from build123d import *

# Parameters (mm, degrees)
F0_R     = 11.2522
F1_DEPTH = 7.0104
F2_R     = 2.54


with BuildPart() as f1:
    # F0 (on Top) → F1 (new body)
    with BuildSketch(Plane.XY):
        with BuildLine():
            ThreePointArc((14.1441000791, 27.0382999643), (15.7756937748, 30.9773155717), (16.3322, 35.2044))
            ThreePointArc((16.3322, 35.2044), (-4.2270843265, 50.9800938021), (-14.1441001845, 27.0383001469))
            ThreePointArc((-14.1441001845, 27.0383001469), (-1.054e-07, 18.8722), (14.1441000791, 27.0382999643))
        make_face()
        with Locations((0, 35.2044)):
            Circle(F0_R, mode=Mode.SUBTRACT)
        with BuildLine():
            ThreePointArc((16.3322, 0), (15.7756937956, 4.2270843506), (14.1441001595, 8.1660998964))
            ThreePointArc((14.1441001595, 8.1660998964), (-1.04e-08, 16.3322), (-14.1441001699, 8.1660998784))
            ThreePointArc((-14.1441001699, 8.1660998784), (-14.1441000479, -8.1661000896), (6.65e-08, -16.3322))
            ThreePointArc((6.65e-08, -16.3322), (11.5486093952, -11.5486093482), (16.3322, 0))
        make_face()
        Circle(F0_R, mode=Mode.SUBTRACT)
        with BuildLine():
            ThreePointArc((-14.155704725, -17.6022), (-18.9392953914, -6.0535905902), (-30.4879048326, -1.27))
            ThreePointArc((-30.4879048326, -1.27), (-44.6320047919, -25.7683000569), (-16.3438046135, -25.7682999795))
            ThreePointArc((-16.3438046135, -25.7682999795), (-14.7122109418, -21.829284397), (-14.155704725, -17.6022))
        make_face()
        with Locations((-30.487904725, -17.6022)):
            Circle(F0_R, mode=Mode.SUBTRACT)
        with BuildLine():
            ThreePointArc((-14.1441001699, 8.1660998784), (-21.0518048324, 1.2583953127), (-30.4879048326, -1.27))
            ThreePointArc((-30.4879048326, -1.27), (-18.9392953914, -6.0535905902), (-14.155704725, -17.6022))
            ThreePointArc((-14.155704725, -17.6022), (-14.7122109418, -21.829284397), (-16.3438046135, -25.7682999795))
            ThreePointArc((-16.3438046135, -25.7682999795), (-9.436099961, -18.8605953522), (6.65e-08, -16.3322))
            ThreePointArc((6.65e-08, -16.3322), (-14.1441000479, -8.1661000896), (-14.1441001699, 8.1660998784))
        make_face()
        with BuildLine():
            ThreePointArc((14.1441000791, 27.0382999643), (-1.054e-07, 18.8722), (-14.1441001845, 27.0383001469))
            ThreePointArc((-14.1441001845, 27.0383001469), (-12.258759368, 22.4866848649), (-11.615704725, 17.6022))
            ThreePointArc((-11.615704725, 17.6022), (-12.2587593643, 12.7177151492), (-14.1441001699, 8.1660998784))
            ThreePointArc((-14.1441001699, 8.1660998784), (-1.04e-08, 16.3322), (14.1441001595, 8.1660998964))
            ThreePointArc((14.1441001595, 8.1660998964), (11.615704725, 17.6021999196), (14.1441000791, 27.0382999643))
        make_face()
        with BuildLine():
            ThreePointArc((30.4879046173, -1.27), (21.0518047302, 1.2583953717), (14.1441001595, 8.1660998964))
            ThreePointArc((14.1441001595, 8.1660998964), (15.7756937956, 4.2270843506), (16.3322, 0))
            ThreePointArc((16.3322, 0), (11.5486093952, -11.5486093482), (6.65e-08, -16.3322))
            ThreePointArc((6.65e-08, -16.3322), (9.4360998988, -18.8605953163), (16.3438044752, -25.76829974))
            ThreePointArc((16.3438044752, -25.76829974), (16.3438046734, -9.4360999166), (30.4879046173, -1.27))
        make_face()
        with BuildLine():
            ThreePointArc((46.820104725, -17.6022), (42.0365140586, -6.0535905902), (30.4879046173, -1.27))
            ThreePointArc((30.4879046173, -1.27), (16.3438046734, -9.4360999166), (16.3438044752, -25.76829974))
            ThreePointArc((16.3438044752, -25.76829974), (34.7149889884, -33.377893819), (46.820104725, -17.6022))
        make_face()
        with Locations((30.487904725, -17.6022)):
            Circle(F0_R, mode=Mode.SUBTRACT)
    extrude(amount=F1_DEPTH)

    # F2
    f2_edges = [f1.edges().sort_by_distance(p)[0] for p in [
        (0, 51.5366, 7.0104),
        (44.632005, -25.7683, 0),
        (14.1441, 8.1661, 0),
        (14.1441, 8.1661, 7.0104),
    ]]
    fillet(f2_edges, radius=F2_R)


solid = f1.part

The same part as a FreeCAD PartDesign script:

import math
import FreeCAD as App
import Part
import Sketcher
Q = App.Units.Quantity


def edges_at(feature, points):
    """Names of the edges that pass closest to the given points."""
    edges = feature.Shape.Edges
    near = lambda p: min(range(len(edges)), key=lambda i: edges[i].distToShape(Part.Vertex(*p))[0])
    return sorted({f"Edge{near(p) + 1}" for p in points})

doc = App.newDocument("Part")
params = doc.addObject("Spreadsheet::Sheet", "Params")
for row, (alias, value) in enumerate([
    ("sketch1_diameter", "0.886 in"),
    ("sketch1_radius", "0.643 in"),
    ("sketch1_radius2", "0.743 in"),
    ("pad1_length", "0.276 in"),
    ("fillet_radius", "0.1 in"),
], start=1):
    params.set(f"A{row}", alias)
    params.set(f"B{row}", "=" + value)
    params.setAlias(f"B{row}", alias)

body = doc.addObject("PartDesign::Body", "Body")

sketch1 = body.newObject("Sketcher::SketchObject", "Sketch")
sketch1.AttachmentSupport = (doc.getObject("XY_Plane"), [""])
sketch1.MapMode = "FlatFace"
sketch1.addGeometry([
    Part.ArcOfCircle(Part.Circle(App.Vector(0, 35, 0), App.Vector(0, 0, 1), 16), math.radians(-30), math.radians(0)),
    Part.ArcOfCircle(Part.Circle(App.Vector(0, 35, 0), App.Vector(0, 0, 1), 16), math.radians(0), math.radians(210)),
    Part.ArcOfCircle(Part.Circle(App.Vector(-30, 18, 0), App.Vector(0, 0, 1), 19), math.radians(0), math.radians(30)),
    Part.ArcOfCircle(Part.Circle(App.Vector(-30, 18, 0), App.Vector(0, 0, 1), 19), math.radians(-30), math.radians(0)),
    Part.ArcOfCircle(Part.Circle(App.Vector(-30, 18, 0), App.Vector(0, 0, 1), 19), math.radians(-90), math.radians(-30)),
    Part.ArcOfCircle(Part.Circle(App.Vector(-30, -18, 0), App.Vector(0, 0, 1), 16), math.radians(90), math.radians(330)),
    Part.ArcOfCircle(Part.Circle(App.Vector(0, -35, 0), App.Vector(0, 0, 1), 19), math.radians(90), math.radians(150)),
    Part.ArcOfCircle(Part.Circle(App.Vector(0, -35, 0), App.Vector(0, 0, 1), 19), math.radians(30), math.radians(90)),
    Part.ArcOfCircle(Part.Circle(App.Vector(30, -18, 0), App.Vector(0, 0, 1), 16), math.radians(-150), math.radians(0)),
    Part.ArcOfCircle(Part.Circle(App.Vector(30, -18, 0), App.Vector(0, 0, 1), 16), math.radians(0), math.radians(90)),
    Part.ArcOfCircle(Part.Circle(App.Vector(30, 18, 0), App.Vector(0, 0, 1), 19), math.radians(-150), math.radians(-90)),
    Part.ArcOfCircle(Part.Circle(App.Vector(30, 18, 0), App.Vector(0, 0, 1), 19), math.radians(150), math.radians(210)),
    Part.Circle(App.Vector(-30, -18, 0), App.Vector(0, 0, 1), 11),
    Part.Circle(App.Vector(0, 0, 0), App.Vector(0, 0, 1), 11),
    Part.Circle(App.Vector(30, -18, 0), App.Vector(0, 0, 1), 11),
    Part.Circle(App.Vector(0, 35, 0), App.Vector(0, 0, 1), 11),
], False)
sketch1.addConstraint([
    Sketcher.Constraint("Tangent", 0, 2, 1, 1),
    Sketcher.Constraint("Tangent", 1, 2, 2, 2),
    Sketcher.Constraint("Tangent", 2, 1, 3, 2),
    Sketcher.Constraint("Tangent", 3, 1, 4, 2),
    Sketcher.Constraint("Tangent", 4, 1, 5, 1),
    Sketcher.Constraint("Tangent", 5, 2, 6, 2),
    Sketcher.Constraint("Tangent", 6, 1, 7, 2),
    Sketcher.Constraint("Tangent", 7, 1, 8, 1),
    Sketcher.Constraint("Tangent", 8, 2, 9, 1),
    Sketcher.Constraint("Tangent", 9, 2, 10, 2),
    Sketcher.Constraint("Tangent", 10, 1, 11, 2),
    Sketcher.Constraint("Tangent", 11, 1, 0, 1),
    Sketcher.Constraint("Coincident", 13, 3, -1, 1),
    Sketcher.Constraint("Coincident", 4, 3, 2, 3),
    Sketcher.Constraint("Coincident", 12, 3, 5, 3),
    Sketcher.Constraint("Coincident", 14, 3, 8, 3),
    Sketcher.Constraint("Coincident", 15, 3, 0, 3),
    Sketcher.Constraint("Equal", 0, 1),
    Sketcher.Constraint("Equal", 1, 5),
    Sketcher.Constraint("Equal", 4, 6),
    Sketcher.Constraint("Equal", 6, 7),
    Sketcher.Constraint("Equal", 5, 8),
    Sketcher.Constraint("Equal", 8, 9),
    Sketcher.Constraint("Equal", 7, 10),
    Sketcher.Constraint("Equal", 10, 11),
    Sketcher.Constraint("Equal", 12, 13),
    Sketcher.Constraint("Equal", 13, 14),
    Sketcher.Constraint("Equal", 14, 15),
    Sketcher.Constraint("Symmetric", 0, 3, 6, 3, -1, 1),
    Sketcher.Constraint("Symmetric", 5, 3, 8, 3, -2),
    Sketcher.Constraint("PointOnObject", 6, 1, -2),
    Sketcher.Constraint("Horizontal", 15, 3, 0, 2),
    Sketcher.Constraint("Horizontal", 11, 3, 2, 1),
    Sketcher.Constraint("Horizontal", 14, 3, 8, 2),
    Sketcher.Constraint("Horizontal", 3, 1, 10, 1),
    Sketcher.Constraint("Vertical", 4, 3, 5, 3),
    Sketcher.Constraint("Vertical", 1, 2, 3, 1),
    Sketcher.Constraint("Diameter", 12, Q("0.886 in")),
    Sketcher.Constraint("Radius", 0, Q("0.643 in")),
    Sketcher.Constraint("Radius", 2, Q("0.743 in")),
    Sketcher.Constraint("DistanceY", -1, 1, 0, 3, Q("1.386 in")),
])
sketch1.setExpression("Constraints[37]", "Params.sketch1_diameter")
sketch1.setExpression("Constraints[38]", "Params.sketch1_radius")
sketch1.setExpression("Constraints[39]", "Params.sketch1_radius2")
pad1 = body.newObject("PartDesign::Pad", "Pad")
pad1.Profile = sketch1
pad1.setExpression("Length", "Params.pad1_length")
doc.recompute()

fillet = body.newObject("PartDesign::Fillet", "Fillet")
fillet.Base = (pad1, edges_at(pad1, [
    (-4.227, 50.98, 7.01),
    (34.715, -33.378, 0),
    (11.616, 17.602, 0),
    (11.616, 17.602, 7.01),
]))
fillet.setExpression("Radius", "Params.fillet_radius")

doc.recompute()
